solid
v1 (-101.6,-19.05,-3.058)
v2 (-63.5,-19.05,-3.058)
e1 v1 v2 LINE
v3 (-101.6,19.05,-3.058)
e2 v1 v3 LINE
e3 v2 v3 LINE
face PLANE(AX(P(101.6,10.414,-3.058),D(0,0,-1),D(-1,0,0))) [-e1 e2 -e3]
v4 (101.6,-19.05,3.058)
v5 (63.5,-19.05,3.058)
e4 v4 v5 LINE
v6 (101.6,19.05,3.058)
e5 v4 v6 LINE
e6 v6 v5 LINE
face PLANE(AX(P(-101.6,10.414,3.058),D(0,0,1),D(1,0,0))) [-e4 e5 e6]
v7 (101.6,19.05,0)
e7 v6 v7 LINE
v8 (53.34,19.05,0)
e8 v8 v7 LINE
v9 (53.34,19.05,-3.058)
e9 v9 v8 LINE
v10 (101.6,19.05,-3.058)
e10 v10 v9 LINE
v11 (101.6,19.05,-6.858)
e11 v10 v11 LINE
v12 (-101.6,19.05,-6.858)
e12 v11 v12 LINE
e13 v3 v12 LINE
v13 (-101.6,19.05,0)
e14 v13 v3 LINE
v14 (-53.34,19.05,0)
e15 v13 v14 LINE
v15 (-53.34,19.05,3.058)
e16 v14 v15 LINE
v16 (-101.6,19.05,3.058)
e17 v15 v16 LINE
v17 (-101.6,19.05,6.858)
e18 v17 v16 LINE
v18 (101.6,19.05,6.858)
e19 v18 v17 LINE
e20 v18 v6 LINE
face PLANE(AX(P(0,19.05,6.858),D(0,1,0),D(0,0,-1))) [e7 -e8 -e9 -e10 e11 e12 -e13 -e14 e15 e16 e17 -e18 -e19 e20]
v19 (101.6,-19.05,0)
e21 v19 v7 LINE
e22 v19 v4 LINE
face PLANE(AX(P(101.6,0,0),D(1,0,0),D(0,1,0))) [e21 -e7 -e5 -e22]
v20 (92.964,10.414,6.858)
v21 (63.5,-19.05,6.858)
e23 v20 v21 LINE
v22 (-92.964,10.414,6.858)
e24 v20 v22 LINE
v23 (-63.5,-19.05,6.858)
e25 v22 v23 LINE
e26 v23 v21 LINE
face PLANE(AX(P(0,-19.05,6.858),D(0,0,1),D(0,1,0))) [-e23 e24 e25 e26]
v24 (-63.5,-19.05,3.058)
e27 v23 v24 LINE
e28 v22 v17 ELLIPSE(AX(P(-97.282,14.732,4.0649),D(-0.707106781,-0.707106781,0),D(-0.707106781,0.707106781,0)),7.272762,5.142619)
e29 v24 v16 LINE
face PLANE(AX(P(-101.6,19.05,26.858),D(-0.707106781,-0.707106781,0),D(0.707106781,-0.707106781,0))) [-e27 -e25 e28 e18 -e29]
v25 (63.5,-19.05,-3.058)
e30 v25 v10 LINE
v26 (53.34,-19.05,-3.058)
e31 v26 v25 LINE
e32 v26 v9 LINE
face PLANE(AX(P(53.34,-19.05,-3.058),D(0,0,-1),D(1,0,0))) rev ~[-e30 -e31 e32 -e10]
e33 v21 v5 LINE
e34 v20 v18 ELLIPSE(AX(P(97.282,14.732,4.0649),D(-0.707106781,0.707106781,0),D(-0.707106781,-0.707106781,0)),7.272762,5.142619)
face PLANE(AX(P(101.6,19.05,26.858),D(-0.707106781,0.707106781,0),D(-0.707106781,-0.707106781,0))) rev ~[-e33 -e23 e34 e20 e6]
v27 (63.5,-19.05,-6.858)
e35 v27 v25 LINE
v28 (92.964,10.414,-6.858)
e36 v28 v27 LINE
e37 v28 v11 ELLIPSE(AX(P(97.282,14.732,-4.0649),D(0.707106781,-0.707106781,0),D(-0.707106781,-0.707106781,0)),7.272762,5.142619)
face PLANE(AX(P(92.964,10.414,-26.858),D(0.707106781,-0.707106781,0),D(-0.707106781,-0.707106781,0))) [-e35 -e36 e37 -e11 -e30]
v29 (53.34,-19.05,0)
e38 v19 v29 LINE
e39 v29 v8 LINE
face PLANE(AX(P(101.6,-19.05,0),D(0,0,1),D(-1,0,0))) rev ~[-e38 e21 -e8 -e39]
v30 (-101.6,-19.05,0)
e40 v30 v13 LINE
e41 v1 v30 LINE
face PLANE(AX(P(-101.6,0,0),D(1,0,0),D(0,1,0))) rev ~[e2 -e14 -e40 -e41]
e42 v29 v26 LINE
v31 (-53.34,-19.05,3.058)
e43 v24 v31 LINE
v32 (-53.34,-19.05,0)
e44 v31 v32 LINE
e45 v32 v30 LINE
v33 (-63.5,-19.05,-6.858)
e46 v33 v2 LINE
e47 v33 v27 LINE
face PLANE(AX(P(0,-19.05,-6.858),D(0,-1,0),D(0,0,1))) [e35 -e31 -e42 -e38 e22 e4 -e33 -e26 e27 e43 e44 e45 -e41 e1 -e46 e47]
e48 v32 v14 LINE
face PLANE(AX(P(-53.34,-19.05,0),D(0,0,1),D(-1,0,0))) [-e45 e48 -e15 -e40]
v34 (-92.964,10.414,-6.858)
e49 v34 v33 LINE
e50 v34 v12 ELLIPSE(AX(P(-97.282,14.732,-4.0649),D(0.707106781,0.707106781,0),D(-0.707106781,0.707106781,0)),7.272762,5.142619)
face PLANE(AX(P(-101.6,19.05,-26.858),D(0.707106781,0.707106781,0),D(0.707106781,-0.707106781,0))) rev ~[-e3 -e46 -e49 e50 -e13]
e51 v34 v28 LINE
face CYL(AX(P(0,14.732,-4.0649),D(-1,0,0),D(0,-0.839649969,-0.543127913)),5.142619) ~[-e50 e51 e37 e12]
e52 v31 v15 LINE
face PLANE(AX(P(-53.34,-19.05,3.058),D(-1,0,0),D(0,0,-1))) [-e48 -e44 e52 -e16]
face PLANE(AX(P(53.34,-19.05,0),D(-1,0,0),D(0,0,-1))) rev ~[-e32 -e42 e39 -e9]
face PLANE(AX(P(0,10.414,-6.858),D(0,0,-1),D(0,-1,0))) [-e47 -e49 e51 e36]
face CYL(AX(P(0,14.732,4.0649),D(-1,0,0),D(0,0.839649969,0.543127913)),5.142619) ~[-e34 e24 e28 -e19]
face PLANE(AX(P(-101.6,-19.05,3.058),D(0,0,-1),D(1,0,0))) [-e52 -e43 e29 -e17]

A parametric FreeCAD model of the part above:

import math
import FreeCAD as App
import Part
import Sketcher
Q = App.Units.Quantity


def add_polygon(sketch, points):
    """Adds a closed chain of lines whose ends are joined by coincident constraints."""
    first, n = sketch.GeometryCount, len(points)
    for a, b in zip(points, points[1:] + points[:1]):
        sketch.addGeometry(Part.LineSegment(App.Vector(*a, 0), App.Vector(*b, 0)), False)
    for i in range(n):
        sketch.addConstraint(Sketcher.Constraint("Coincident", first + i, 2, first + (i + 1) % n, 1))

doc = App.newDocument("Part")
params = doc.addObject("Spreadsheet::Sheet", "Params")
for row, (alias, value) in enumerate([
    ("sketch1_height", "0.54 in"),
    ("pad1_length", "8 in"),
    ("sketch2_width", "1.9 in"),
    ("sketch3_width", "1.5 in"),
    ("pocket2_length", "0.9370079 in"),
    ("sketch4_width", "1.5 in"),
    ("pocket3_length", "0.9370079 in"),
], start=1):
    params.set(f"A{row}", alias)
    params.set(f"B{row}", "=" + value)
    params.setAlias(f"B{row}", alias)

body = doc.addObject("PartDesign::Body", "Body")

# Sketch on YZ plane
sketch1 = body.newObject("Sketcher::SketchObject", "Sketch")
sketch1.AttachmentSupport = (doc.getObject("YZ_Plane"), [""])
sketch1.MapMode = "FlatFace"
sketch1.addGeometry([
    Part.LineSegment(App.Vector(10, 7, 0), App.Vector(-19, 7, 0)),  # 0
    Part.LineSegment(App.Vector(-19, 7, 0), App.Vector(-19, -7, 0)),  # 1
    Part.LineSegment(App.Vector(-19, -7, 0), App.Vector(10, -7, 0)),  # 2
    Part.ArcOfCircle(Part.Circle(App.Vector(15, -4, 0), App.Vector(0, 0, 1), 5), math.radians(-147), math.radians(-33)),  # 3
    Part.LineSegment(App.Vector(19, -7, 0), App.Vector(19, 7, 0)),  # 4
    Part.ArcOfCircle(Part.Circle(App.Vector(15, 4, 0), App.Vector(0, 0, 1), 5), math.radians(33), math.radians(147)),  # 5
], False)
sketch1.addConstraint([
    Sketcher.Constraint("Coincident", 0, 2, 1, 1),
    Sketcher.Constraint("Coincident", 1, 2, 2, 1),
    Sketcher.Constraint("Coincident", 2, 2, 3, 1),
    Sketcher.Constraint("Coincident", 3, 2, 4, 1),
    Sketcher.Constraint("Coincident", 4, 2, 5, 1),
    Sketcher.Constraint("Coincident", 5, 2, 0, 1),
    Sketcher.Constraint("Horizontal", 0),
    Sketcher.Constraint("Vertical", 1),
    Sketcher.Constraint("Horizontal", 2),
    Sketcher.Constraint("Vertical", 4),
    Sketcher.Constraint("Equal", 3, 5),
    Sketcher.Constraint("Symmetric", 0, 2, 3, 2, -1, 1),
    Sketcher.Constraint("Symmetric", 3, 3, 5, 3, -1),
    Sketcher.Constraint("Horizontal", 2, 2, 3, 2),
    Sketcher.Constraint("DistanceY", 1, 2, 1, 1, Q("0.54 in")),
    Sketcher.Constraint("DistanceX", 1, 2, 3, 2, Q("1.5 in")),
    Sketcher.Constraint("DistanceX", 2, 2, 3, 2, Q("0.34 in")),
    Sketcher.Constraint("Radius", 3, 5.1426),
])
sketch1.setExpression("Constraints[14]", "Params.sketch1_height")
pad1 = body.newObject("PartDesign::Pad", "Pad")
pad1.Profile = sketch1
pad1.setExpression("Length", "Params.pad1_length")
pad1.Midplane = True

# Sketch on XZ plane
sketch2 = body.newObject("Sketcher::SketchObject", "Sketch001")
sketch2.AttachmentSupport = (doc.getObject("XZ_Plane"), [""])
sketch2.MapMode = "FlatFace"
sketch2.AttachmentOffset = App.Placement(App.Vector(0, 0, 0.75 * 25.4), App.Rotation())
add_polygon(sketch2, [(-101.6, 3.1), (-101.6, 0), (-53.3, 0), (-53.3, 3.1)])  # lines 0-3
add_polygon(sketch2, [(53.3, -3.1), (101.6, -3.1), (101.6, 0), (53.3, 0)])  # lines 4-7
sketch2.addConstraint([
    Sketcher.Constraint("Vertical", 0),
    Sketcher.Constraint("Horizontal", 1),
    Sketcher.Constraint("Vertical", 2),
    Sketcher.Constraint("Horizontal", 3),
    Sketcher.Constraint("Horizontal", 4),
    Sketcher.Constraint("Vertical", 5),
    Sketcher.Constraint("Horizontal", 6),
    Sketcher.Constraint("Vertical", 7),
    Sketcher.Constraint("Symmetric", 3, 2, 4, 2, -1, 1),
    Sketcher.Constraint("Symmetric", 1, 2, 6, 2, -1, 1),
    Sketcher.Constraint("PointOnObject", 0, 2, -1),
    Sketcher.Constraint("DistanceX", 1, 1, 1, 2, Q("1.9 in")),
    Sketcher.Constraint("DistanceY", 0, 2, 0, 1, Q("0.1204 in")),
    Sketcher.Constraint("DistanceX", 0, 2, -1, 1, Q("4 in")),
])
sketch2.setExpression("Constraints[19]", "Params.sketch2_width")
pocket1 = body.newObject("PartDesign::Pocket", "Pocket")
pocket1.Profile = sketch2
pocket1.Type = "ThroughAll"

# Sketch on XY plane
sketch3 = body.newObject("Sketcher::SketchObject", "Sketch002")
sketch3.AttachmentSupport = (doc.getObject("XY_Plane"), [""])
sketch3.MapMode = "FlatFace"
sketch3.AttachmentOffset = App.Placement(App.Vector(0, 0, 1.0574016 * 25.4), App.Rotation())
add_polygon(sketch3, [(-102, 19), (-102, -19), (-64, -19)])  # lines 0-2
add_polygon(sketch3, [(102, 19), (64, -19), (102, -19)])  # lines 3-5
sketch3.addConstraint([
    Sketcher.Constraint("Vertical", 0),
    Sketcher.Constraint("Horizontal", 1),
    Sketcher.Constraint("Horizontal", 4),
    Sketcher.Constraint("Vertical", 5),
    Sketcher.Constraint("Symmetric", 2, 2, 4, 2, -1, 1),
    Sketcher.Constraint("Symmetric", 1, 2, 3, 2, -2),
    Sketcher.Constraint("Perpendicular", 2, 3),
    Sketcher.Constraint("Horizontal", 2, 2, 5, 2),
    Sketcher.Constraint("DistanceX", 1, 1, 1, 2, Q("1.5 in")),
    Sketcher.Constraint("DistanceX", 0, 2, -1, 1, Q("4 in")),
])
sketch3.setExpression("Constraints[14]", "Params.sketch3_width")
pocket2 = body.newObject("PartDesign::Pocket", "Pocket001")
pocket2.Profile = sketch3
pocket2.setExpression("Length", "Params.pocket2_length")

# Sketch on XY plane
sketch4 = body.newObject("Sketcher::SketchObject", "Sketch003")
sketch4.AttachmentSupport = (doc.getObject("XY_Plane"), [""])
sketch4.MapMode = "FlatFace"
sketch4.AttachmentOffset = App.Placement(App.Vector(0, 0, -1.0574016 * 25.4), App.Rotation())
add_polygon(sketch4, [(-102, -19), (-102, 19), (-64, -19)])  # lines 0-2
add_polygon(sketch4, [(64, -19), (102, 19), (102, -19)])  # lines 3-5
sketch4.addConstraint([
    Sketcher.Constraint("Vertical", 0),
    Sketcher.Constraint("Horizontal", 2),
    Sketcher.Constraint("Vertical", 4),
    Sketcher.Constraint("Horizontal", 5),
    Sketcher.Constraint("Symmetric", 2, 2, 3, 2, -1, 1),
    Sketcher.Constraint("Symmetric", 1, 2, 5, 2, -2),
    Sketcher.Constraint("Perpendicular", 1, 3),
    Sketcher.Constraint("Horizontal", 0, 2, 3, 2),
    Sketcher.Constraint("DistanceX", 2, 2, 2, 1, Q("1.5 in")),
    Sketcher.Constraint("DistanceX", 0, 2, -1, 1, Q("4 in")),
])
sketch4.setExpression("Constraints[14]", "Params.sketch4_width")
pocket3 = body.newObject("PartDesign::Pocket", "Pocket002")
pocket3.Profile = sketch4
pocket3.setExpression("Length", "Params.pocket3_length")
pocket3.Reversed = True

doc.recompute()
